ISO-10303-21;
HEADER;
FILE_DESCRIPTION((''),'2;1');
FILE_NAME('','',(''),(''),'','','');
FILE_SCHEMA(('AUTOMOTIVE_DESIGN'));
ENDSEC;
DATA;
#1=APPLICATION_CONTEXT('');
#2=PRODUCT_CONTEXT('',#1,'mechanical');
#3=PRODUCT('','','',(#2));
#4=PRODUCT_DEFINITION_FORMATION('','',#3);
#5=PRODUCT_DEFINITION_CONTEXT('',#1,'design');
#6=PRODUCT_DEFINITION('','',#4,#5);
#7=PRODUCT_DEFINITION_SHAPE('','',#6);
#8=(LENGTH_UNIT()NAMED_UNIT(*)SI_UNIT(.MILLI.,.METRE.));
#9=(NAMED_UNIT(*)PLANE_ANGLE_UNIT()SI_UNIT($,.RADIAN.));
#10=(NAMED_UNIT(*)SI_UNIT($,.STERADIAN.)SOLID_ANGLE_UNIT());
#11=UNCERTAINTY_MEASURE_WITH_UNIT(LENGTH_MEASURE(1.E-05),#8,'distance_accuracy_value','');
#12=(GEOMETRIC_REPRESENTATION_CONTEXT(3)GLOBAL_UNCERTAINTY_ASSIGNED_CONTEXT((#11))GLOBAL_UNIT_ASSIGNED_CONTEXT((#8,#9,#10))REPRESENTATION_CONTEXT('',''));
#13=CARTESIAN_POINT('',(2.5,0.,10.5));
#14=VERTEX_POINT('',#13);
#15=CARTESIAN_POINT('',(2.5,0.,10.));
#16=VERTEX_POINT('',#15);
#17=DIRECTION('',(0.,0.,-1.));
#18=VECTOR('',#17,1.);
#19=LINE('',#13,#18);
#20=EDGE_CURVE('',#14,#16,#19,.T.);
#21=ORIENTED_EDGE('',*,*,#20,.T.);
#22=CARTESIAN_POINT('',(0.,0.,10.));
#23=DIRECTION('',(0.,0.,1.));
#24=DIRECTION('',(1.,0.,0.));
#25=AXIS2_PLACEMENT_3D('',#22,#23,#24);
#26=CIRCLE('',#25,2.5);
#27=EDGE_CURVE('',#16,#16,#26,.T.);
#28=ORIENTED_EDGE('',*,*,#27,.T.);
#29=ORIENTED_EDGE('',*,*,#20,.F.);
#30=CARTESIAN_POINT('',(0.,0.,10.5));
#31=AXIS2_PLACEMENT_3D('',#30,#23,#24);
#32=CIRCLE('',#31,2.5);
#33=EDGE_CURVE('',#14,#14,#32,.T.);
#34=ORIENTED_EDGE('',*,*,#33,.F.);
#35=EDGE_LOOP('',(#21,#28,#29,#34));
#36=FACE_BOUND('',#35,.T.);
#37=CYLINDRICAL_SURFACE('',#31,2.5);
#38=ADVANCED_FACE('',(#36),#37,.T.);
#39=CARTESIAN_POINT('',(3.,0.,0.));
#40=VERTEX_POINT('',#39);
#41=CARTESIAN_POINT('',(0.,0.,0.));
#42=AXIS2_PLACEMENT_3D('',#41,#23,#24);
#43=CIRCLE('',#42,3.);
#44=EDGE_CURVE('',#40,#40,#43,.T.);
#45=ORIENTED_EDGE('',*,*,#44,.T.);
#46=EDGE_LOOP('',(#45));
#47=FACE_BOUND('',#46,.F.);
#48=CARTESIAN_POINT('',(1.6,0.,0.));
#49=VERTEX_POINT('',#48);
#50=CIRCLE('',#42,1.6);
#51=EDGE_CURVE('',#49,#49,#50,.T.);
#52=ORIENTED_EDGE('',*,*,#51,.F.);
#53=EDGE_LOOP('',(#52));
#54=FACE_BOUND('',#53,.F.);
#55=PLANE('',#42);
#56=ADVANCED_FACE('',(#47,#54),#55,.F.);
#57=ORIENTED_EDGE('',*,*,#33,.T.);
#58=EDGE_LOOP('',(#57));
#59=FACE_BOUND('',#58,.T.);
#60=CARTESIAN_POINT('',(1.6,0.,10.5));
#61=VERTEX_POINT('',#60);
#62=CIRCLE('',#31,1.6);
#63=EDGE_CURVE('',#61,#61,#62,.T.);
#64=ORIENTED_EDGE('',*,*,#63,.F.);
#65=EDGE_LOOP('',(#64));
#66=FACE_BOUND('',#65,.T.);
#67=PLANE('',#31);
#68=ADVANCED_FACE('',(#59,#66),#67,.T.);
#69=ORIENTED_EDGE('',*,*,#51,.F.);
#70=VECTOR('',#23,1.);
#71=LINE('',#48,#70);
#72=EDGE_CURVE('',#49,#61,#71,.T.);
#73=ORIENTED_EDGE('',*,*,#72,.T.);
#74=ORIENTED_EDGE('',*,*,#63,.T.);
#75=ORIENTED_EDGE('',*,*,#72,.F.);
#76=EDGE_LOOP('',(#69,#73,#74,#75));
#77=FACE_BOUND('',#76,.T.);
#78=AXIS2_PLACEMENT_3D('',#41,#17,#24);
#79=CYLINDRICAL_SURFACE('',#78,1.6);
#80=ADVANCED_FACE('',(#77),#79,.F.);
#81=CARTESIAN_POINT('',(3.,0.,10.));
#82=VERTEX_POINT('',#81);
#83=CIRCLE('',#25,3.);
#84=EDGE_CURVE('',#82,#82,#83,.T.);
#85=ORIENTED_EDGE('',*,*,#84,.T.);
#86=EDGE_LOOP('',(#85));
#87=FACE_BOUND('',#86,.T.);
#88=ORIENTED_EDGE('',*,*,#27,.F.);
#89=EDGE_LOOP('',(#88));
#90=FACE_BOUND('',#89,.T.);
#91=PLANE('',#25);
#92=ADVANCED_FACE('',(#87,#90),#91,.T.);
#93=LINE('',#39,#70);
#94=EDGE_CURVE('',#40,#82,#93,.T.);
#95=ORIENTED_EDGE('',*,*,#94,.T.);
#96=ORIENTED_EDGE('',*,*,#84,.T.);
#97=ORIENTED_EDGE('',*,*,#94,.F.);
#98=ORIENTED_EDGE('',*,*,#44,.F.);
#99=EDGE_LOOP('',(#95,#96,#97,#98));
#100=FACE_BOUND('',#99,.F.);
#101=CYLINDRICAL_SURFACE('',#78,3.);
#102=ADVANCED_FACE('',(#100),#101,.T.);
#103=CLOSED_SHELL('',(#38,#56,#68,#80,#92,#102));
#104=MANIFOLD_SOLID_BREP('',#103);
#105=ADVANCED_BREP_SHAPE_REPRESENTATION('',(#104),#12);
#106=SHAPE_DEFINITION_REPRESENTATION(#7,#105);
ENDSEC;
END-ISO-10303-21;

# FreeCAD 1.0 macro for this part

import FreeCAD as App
import Part
import Sketcher

V = App.Vector
Q = App.Units.Quantity

doc = App.newDocument("Part")
body = doc.addObject("PartDesign::Body", "Body")

# Sketch on XY plane
sketch1 = body.newObject("Sketcher::SketchObject", "Sketch")
sketch1.AttachmentSupport = (doc.getObject("XY_Plane"), [""])
sketch1.MapMode = "FlatFace"
sketch1.addGeometry(Part.Circle(V(0, 0, 0), V(0, 0, 1), 3), False)
sketch1.addGeometry(Part.Circle(V(0, 0, 0), V(0, 0, 1), 1.6), False)
sketch1.addConstraint(Sketcher.Constraint("Coincident", 0, 3, -1, 1))
sketch1.addConstraint(Sketcher.Constraint("Coincident", 1, 3, -1, 1))
sketch1.addConstraint(Sketcher.Constraint("Diameter", 0, Q("6 mm")))
sketch1.addConstraint(Sketcher.Constraint("Diameter", 1, Q("3.2 mm")))
pad1 = body.newObject("PartDesign::Pad", "Pad")
pad1.Profile = sketch1
pad1.Length = 10.5

# Sketch on XY plane
sketch2 = body.newObject("Sketcher::SketchObject", "Sketch001")
sketch2.AttachmentSupport = (doc.getObject("XY_Plane"), [""])
sketch2.MapMode = "FlatFace"
sketch2.AttachmentOffset = App.Placement(V(0, 0, 10.5), App.Rotation())
sketch2.addGeometry(Part.Circle(V(0, 0, 0), V(0, 0, 1), 3), False)
sketch2.addGeometry(Part.Circle(V(0, 0, 0), V(0, 0, 1), 2.5), False)
sketch2.addConstraint(Sketcher.Constraint("Coincident", 0, 3, -1, 1))
sketch2.addConstraint(Sketcher.Constraint("Coincident", 1, 3, -1, 1))
sketch2.addConstraint(Sketcher.Constraint("Diameter", 0, Q("6 mm")))
sketch2.addConstraint(Sketcher.Constraint("Diameter", 1, Q("5 mm")))
pocket1 = body.newObject("PartDesign::Pocket", "Pocket")
pocket1.Profile = sketch2
pocket1.Length = 0.5

doc.recompute()
